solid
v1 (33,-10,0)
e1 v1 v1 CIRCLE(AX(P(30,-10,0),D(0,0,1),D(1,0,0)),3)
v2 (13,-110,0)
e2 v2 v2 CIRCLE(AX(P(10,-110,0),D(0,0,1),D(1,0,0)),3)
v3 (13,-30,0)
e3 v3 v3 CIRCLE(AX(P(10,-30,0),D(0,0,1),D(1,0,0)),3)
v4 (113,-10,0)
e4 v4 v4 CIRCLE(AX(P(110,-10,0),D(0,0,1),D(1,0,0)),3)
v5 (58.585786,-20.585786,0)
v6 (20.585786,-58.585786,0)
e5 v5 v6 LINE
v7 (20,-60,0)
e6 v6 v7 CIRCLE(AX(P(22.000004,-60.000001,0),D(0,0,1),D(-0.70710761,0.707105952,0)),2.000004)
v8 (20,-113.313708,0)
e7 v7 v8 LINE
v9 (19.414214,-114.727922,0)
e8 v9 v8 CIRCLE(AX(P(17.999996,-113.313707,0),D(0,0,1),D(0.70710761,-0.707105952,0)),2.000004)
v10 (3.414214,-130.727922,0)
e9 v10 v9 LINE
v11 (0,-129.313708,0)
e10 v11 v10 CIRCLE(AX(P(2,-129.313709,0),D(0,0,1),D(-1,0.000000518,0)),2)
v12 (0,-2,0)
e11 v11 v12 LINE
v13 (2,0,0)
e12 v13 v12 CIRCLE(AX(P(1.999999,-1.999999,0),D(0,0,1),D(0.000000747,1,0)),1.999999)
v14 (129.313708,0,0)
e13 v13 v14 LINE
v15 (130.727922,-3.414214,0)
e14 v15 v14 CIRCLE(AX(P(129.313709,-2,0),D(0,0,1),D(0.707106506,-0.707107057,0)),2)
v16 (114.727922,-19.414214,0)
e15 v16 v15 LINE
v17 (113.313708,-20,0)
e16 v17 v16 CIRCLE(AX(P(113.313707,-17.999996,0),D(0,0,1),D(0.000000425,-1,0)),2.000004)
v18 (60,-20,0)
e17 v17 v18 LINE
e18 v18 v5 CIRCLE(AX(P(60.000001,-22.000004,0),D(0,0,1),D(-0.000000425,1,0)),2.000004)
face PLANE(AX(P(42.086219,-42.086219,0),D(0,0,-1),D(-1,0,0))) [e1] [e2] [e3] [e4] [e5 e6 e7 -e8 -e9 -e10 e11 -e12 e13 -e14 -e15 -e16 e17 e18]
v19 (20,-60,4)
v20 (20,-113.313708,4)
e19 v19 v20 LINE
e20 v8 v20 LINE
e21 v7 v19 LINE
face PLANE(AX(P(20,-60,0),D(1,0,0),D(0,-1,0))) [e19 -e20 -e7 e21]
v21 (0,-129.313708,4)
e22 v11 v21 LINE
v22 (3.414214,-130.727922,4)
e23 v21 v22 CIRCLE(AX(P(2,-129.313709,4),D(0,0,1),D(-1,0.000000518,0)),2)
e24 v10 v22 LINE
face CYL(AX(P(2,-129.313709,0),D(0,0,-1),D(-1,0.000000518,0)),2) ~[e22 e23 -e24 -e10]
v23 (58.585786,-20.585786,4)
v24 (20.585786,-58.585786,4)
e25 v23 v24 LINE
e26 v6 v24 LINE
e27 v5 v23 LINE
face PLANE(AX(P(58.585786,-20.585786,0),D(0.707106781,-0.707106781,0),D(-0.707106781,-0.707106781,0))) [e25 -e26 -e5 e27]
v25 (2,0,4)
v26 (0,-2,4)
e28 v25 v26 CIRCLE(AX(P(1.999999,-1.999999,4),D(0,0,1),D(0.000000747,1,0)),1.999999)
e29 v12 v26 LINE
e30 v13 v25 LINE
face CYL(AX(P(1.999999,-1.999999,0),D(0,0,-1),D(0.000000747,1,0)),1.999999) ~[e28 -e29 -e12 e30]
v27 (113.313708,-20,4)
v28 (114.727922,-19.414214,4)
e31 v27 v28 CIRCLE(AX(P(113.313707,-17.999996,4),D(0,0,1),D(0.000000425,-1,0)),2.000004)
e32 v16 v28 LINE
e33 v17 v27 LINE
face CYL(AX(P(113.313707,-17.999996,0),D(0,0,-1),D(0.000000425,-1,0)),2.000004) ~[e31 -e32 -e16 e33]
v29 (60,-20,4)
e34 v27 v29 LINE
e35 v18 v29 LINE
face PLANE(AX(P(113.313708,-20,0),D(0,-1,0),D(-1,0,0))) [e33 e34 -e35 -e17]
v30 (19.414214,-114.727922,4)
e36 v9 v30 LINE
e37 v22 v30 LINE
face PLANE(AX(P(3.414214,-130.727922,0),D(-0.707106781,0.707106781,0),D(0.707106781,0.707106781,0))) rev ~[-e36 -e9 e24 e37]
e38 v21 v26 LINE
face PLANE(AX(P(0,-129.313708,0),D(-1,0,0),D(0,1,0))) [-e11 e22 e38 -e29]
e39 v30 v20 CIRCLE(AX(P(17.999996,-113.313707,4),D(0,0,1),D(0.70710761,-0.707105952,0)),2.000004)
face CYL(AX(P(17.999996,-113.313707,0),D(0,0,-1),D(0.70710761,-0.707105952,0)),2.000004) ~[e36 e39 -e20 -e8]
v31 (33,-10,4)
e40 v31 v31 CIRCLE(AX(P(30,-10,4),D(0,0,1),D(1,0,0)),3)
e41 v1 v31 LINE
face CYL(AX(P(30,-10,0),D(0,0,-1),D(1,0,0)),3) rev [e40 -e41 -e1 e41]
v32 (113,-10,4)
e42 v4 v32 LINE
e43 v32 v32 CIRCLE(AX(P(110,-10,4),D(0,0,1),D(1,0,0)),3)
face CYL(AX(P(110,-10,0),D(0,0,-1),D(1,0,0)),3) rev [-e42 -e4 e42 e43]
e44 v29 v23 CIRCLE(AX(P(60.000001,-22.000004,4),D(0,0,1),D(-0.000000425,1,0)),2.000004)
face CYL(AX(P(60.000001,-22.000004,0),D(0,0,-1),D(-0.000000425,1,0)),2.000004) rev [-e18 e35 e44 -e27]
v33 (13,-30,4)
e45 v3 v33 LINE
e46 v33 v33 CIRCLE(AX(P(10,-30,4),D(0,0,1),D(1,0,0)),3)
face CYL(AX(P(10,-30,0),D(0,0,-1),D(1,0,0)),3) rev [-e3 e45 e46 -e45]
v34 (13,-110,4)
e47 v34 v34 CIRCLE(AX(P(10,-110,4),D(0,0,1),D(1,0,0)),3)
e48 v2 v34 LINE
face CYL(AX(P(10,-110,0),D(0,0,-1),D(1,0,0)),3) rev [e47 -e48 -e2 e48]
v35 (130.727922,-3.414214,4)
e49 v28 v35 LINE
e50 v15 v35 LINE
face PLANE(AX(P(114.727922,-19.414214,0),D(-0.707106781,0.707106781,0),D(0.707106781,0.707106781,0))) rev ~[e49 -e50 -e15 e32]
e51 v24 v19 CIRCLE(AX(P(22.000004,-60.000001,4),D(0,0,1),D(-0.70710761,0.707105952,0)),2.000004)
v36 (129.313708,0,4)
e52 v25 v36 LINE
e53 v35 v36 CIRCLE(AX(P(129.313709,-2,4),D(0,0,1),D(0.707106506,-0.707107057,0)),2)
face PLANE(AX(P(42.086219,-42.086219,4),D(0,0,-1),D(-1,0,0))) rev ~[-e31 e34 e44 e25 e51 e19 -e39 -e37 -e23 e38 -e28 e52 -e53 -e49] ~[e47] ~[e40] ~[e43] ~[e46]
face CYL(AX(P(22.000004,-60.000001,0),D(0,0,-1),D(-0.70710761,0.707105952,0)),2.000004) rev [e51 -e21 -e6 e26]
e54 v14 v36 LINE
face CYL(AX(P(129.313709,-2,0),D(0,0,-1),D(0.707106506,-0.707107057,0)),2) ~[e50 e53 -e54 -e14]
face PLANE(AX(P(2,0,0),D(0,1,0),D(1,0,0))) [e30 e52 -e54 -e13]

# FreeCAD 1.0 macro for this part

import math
import FreeCAD as App
import Part
import Sketcher
from FreeCAD import Vector

doc = App.newDocument("Part")
body = doc.addObject("PartDesign::Body", "Body")

# Sketch on XY plane
sketch1 = body.newObject("Sketcher::SketchObject", "Sketch")
sketch1.AttachmentSupport = (doc.getObject("XY_Plane"), [""])
sketch1.MapMode = "FlatFace"
sketch1.addGeometry([
    Part.LineSegment(Vector(129.3, 0, 0), Vector(2, 0, 0)),  # 0
    Part.ArcOfCircle(Part.Circle(Vector(2, -2, 0), Vector(0, 0, 1), 2), math.radians(90), math.radians(180)),  # 1
    Part.LineSegment(Vector(0, -2, 0), Vector(0, -129.3, 0)),  # 2
    Part.ArcOfCircle(Part.Circle(Vector(2, -129.3, 0), Vector(0, 0, 1), 2), math.radians(180), math.radians(315)),  # 3
    Part.LineSegment(Vector(3.4, -130.7, 0), Vector(19.4, -114.7, 0)),  # 4
    Part.ArcOfCircle(Part.Circle(Vector(18, -113.3, 0), Vector(0, 0, 1), 2), math.radians(-45), math.radians(0)),  # 5
    Part.LineSegment(Vector(20, -113.3, 0), Vector(20, -60, 0)),  # 6
    Part.ArcOfCircle(Part.Circle(Vector(22, -60, 0), Vector(0, 0, 1), 2), math.radians(135), math.radians(180)),  # 7
    Part.LineSegment(Vector(20.6, -58.6, 0), Vector(58.6, -20.6, 0)),  # 8
    Part.ArcOfCircle(Part.Circle(Vector(60, -22, 0), Vector(0, 0, 1), 2), math.radians(90), math.radians(135)),  # 9
    Part.LineSegment(Vector(60, -20, 0), Vector(113.3, -20, 0)),  # 10
    Part.ArcOfCircle(Part.Circle(Vector(113.3, -18, 0), Vector(0, 0, 1), 2), math.radians(-90), math.radians(-45)),  # 11
    Part.LineSegment(Vector(114.7, -19.4, 0), Vector(130.7, -3.4, 0)),  # 12
    Part.ArcOfCircle(Part.Circle(Vector(129.3, -2, 0), Vector(0, 0, 1), 2), math.radians(-45), math.radians(90)),  # 13
    Part.Circle(Vector(10, -110, 0), Vector(0, 0, 1), 3),  # 14
    Part.Circle(Vector(110, -10, 0), Vector(0, 0, 1), 3),  # 15
    Part.Circle(Vector(10, -30, 0), Vector(0, 0, 1), 3),  # 16
    Part.Circle(Vector(30, -10, 0), Vector(0, 0, 1), 3),  # 17
], False)
sketch1.addConstraint([
    Sketcher.Constraint("Tangent", 0, 2, 1, 1),
    Sketcher.Constraint("Tangent", 1, 2, 2, 1),
    Sketcher.Constraint("Tangent", 2, 2, 3, 1),
    Sketcher.Constraint("Tangent", 3, 2, 4, 1),
    Sketcher.Constraint("Tangent", 4, 2, 5, 1),
    Sketcher.Constraint("Tangent", 5, 2, 6, 1),
    Sketcher.Constraint("Tangent", 6, 2, 7, 2),
    Sketcher.Constraint("Tangent", 7, 1, 8, 1),
    Sketcher.Constraint("Tangent", 8, 2, 9, 2),
    Sketcher.Constraint("Tangent", 9, 1, 10, 1),
    Sketcher.Constraint("Tangent", 10, 2, 11, 1),
    Sketcher.Constraint("Tangent", 11, 2, 12, 1),
    Sketcher.Constraint("Tangent", 12, 2, 13, 1),
    Sketcher.Constraint("Tangent", 13, 2, 0, 1),
    Sketcher.Constraint("Horizontal", 0),
    Sketcher.Constraint("Vertical", 2),
    Sketcher.Constraint("Vertical", 6),
    Sketcher.Constraint("Horizontal", 10),
    Sketcher.Constraint("Equal", 1, 3),
    Sketcher.Constraint("Equal", 5, 7),
    Sketcher.Constraint("Equal", 7, 9),
    Sketcher.Constraint("Equal", 9, 11),
    Sketcher.Constraint("Equal", 3, 13),
    Sketcher.Constraint("Equal", 14, 15),
    Sketcher.Constraint("Equal", 15, 16),
    Sketcher.Constraint("Equal", 16, 17),
    Sketcher.Constraint("PointOnObject", 0, 2, -1),
    Sketcher.Constraint("PointOnObject", 1, 2, -2),
    Sketcher.Constraint("Parallel", 4, 8),
    Sketcher.Constraint("Parallel", 8, 12),
    Sketcher.Constraint("Horizontal", 15, 3, 17, 3),
    Sketcher.Constraint("Vertical", 14, 3, 16, 3),
    Sketcher.Constraint("Equal", 0, 2),
    Sketcher.Constraint("Equal", 10, 6),
    Sketcher.Constraint("Equal", 4, 12),
    Sketcher.Constraint("Diameter", 14, 6.0),
    Sketcher.Constraint("Radius", 1, 1.999999),
    Sketcher.Constraint("DistanceY", 7, 3, -1, 1, 60.000001),
    Sketcher.Constraint("DistanceX", -1, 1, 14, 3, 10.0),
    Sketcher.Constraint("DistanceY", 14, 3, -1, 1, 110.0),
    Sketcher.Constraint("DistanceX", -1, 1, 15, 3, 110.0),
    Sketcher.Constraint("DistanceY", 15, 3, -1, 1, 10.0),
    Sketcher.Constraint("DistanceY", 16, 3, -1, 1, 30.0),
    Sketcher.Constraint("DistanceX", -1, 1, 17, 3, 30.0),
    Sketcher.Constraint("DistanceX", -1, 1, 5, 2, 20.0),
    Sketcher.Constraint("DistanceY", 3, 3, 5, 3, 16.000002),
    Sketcher.Constraint("DistanceX", 10, 1, 10, 2, 53.313708),
])
pad1 = body.newObject("PartDesign::Pad", "Pad")
pad1.Profile = sketch1
pad1.Length = 4

doc.recompute()
